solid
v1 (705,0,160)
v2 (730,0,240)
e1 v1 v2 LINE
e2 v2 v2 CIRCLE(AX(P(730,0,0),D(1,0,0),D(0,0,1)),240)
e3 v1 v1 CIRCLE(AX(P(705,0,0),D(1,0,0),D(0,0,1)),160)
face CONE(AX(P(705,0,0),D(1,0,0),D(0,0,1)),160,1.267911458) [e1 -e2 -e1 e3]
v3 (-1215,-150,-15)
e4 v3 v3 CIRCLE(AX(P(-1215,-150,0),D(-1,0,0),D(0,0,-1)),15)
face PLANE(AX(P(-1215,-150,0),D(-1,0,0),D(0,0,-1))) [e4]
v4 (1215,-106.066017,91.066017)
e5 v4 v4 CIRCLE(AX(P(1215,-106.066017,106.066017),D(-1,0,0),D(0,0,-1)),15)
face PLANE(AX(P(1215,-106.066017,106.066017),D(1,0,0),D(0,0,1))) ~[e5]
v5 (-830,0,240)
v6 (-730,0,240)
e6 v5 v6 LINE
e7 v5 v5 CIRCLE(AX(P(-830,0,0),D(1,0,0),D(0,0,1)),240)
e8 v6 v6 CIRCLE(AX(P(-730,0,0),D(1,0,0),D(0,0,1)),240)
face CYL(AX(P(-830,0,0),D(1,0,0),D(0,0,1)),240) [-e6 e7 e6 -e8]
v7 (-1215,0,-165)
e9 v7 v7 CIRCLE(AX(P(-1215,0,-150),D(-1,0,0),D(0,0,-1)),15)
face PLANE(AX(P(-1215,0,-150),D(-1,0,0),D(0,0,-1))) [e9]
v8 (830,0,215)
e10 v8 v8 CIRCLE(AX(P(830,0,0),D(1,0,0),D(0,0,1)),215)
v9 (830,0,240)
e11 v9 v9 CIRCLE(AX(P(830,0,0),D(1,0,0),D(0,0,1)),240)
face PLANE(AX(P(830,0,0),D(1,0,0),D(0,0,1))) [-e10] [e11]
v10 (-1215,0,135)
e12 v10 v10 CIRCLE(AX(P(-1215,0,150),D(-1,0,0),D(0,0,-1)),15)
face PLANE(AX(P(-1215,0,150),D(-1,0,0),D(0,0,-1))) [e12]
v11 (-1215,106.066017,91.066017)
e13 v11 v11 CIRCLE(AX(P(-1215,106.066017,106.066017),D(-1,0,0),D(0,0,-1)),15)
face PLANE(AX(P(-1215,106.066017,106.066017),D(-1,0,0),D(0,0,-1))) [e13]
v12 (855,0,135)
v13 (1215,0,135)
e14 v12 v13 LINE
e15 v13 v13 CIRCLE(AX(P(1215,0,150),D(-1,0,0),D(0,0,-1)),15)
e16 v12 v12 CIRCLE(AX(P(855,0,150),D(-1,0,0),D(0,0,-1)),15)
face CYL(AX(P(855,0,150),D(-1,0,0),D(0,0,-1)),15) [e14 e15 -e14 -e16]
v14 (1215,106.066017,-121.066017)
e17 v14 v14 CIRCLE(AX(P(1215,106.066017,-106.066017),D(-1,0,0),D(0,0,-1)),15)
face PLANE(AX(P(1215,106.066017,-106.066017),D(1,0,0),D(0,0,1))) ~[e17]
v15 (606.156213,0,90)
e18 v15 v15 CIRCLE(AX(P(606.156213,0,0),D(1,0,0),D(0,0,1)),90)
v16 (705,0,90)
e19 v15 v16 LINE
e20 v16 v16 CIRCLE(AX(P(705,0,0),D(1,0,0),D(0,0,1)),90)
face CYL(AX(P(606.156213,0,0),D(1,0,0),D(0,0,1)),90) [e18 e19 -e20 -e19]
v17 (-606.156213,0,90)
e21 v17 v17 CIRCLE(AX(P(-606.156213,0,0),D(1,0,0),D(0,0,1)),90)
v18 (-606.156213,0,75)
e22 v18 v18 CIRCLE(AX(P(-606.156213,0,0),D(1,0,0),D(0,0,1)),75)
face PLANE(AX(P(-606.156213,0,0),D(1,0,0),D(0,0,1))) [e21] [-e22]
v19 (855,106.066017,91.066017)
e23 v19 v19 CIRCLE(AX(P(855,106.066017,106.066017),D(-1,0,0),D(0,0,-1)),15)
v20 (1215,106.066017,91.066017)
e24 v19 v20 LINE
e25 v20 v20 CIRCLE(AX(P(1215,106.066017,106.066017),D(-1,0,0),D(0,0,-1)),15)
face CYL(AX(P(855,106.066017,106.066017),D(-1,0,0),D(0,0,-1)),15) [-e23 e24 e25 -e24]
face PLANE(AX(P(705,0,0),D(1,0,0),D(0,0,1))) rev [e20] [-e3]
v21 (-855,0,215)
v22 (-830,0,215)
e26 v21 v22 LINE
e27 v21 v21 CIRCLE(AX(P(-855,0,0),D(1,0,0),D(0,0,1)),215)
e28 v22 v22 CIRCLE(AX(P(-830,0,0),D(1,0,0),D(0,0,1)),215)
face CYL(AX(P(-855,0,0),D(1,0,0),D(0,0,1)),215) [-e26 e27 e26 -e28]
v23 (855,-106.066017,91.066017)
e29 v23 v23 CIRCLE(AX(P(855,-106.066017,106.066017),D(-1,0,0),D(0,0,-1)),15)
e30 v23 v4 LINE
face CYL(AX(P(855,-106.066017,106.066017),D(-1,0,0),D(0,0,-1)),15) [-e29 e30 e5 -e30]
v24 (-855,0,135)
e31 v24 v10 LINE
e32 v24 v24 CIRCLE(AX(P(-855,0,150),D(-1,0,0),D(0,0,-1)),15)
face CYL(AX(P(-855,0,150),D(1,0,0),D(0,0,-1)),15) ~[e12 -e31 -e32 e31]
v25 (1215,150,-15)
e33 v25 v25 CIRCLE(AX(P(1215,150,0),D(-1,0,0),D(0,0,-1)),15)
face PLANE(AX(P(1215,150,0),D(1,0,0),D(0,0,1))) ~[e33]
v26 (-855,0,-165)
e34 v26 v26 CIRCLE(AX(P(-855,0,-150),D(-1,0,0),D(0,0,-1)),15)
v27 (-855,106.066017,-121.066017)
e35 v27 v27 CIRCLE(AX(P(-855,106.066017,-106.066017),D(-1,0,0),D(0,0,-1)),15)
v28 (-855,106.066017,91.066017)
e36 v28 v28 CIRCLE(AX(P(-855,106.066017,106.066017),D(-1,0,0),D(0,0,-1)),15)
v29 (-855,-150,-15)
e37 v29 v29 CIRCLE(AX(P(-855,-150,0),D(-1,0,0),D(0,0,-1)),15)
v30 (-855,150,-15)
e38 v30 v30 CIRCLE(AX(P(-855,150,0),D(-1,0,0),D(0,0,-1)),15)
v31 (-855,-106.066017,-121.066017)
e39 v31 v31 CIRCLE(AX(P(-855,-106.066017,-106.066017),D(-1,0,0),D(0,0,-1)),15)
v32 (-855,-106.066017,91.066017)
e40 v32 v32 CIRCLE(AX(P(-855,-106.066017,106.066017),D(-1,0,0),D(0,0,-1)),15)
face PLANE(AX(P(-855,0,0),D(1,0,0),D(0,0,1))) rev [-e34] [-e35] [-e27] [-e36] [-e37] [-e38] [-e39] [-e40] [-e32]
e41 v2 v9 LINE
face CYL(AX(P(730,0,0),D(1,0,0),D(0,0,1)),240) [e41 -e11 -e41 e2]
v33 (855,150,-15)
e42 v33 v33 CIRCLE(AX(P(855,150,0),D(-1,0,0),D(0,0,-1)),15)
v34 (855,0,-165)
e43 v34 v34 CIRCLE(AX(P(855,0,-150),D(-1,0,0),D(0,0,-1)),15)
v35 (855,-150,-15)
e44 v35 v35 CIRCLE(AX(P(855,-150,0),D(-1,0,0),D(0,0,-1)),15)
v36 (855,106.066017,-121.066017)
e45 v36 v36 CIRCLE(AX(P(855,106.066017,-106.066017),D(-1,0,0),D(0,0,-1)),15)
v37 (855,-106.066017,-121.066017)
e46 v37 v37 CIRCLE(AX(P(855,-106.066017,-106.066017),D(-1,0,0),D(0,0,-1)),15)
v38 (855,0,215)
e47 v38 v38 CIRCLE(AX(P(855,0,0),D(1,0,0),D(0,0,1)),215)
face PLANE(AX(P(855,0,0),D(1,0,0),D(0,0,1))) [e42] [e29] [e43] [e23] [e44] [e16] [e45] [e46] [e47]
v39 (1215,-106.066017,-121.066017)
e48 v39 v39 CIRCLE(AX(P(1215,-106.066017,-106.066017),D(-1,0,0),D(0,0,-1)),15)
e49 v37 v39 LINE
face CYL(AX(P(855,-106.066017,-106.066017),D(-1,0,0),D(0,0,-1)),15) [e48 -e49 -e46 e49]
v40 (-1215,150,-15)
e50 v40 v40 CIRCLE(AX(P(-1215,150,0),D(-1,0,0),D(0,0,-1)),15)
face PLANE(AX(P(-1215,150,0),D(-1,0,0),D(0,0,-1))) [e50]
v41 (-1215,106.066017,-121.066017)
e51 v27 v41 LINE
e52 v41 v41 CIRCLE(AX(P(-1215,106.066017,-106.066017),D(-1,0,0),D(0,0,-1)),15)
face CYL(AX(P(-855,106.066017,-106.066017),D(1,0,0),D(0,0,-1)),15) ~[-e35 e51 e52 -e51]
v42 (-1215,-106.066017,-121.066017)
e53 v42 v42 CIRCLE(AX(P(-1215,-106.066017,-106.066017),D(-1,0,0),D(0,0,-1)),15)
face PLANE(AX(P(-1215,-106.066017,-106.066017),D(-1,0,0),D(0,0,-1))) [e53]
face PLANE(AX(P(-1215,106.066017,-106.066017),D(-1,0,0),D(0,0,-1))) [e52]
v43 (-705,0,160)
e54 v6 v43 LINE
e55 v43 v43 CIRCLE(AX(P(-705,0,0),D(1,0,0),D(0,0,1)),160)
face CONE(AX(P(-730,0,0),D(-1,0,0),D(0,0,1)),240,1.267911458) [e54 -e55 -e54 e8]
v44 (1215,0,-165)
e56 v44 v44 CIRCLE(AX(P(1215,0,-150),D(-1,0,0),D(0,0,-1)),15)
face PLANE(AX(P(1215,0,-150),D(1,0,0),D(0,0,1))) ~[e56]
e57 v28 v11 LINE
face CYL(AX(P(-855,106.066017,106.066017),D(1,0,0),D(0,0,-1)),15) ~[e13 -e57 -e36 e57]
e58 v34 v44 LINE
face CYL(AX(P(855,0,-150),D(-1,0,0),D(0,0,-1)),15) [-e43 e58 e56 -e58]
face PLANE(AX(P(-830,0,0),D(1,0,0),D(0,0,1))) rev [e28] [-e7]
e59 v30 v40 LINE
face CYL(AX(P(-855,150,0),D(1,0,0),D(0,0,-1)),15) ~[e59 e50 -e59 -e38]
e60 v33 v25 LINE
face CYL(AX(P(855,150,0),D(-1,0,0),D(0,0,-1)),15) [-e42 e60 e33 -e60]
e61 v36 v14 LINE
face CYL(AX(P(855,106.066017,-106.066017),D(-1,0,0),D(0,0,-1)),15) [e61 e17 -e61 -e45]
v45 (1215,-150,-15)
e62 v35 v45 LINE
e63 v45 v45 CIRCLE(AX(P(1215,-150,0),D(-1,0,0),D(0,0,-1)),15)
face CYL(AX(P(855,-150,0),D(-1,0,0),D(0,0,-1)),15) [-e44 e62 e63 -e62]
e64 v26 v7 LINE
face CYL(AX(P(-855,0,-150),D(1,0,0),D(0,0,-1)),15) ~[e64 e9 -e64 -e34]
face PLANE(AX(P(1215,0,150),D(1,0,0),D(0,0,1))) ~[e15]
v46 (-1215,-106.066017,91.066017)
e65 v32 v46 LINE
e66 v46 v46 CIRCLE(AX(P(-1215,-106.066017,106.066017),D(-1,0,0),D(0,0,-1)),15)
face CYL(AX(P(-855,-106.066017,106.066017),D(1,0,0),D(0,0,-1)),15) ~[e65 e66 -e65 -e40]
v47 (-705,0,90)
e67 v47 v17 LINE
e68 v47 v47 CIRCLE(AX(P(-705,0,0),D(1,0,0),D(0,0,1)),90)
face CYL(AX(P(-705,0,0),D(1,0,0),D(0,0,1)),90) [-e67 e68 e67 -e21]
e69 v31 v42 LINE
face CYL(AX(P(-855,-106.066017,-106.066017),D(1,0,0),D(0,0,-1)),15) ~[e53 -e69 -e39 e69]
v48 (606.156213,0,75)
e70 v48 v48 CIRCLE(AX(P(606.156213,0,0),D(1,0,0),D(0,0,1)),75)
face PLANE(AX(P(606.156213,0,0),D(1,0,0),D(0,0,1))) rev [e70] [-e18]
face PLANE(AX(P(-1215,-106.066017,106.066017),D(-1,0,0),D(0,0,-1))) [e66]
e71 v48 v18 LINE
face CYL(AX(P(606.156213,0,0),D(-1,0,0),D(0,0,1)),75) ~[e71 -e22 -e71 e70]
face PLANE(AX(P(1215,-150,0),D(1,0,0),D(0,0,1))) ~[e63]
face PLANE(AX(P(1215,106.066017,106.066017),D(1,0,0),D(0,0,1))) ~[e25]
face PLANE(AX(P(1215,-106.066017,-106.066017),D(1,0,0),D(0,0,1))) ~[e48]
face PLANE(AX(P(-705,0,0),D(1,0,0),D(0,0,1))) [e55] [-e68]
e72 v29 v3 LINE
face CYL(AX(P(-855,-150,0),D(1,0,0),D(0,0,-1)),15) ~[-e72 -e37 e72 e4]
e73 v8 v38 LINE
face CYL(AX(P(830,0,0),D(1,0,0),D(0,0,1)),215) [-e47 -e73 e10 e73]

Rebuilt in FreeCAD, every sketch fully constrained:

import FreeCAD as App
import Part
import Sketcher


def add_polygon(sketch, points):
    """Adds a closed chain of lines whose ends are joined by coincident constraints."""
    first, n = sketch.GeometryCount, len(points)
    for a, b in zip(points, points[1:] + points[:1]):
        sketch.addGeometry(Part.LineSegment(App.Vector(*a, 0), App.Vector(*b, 0)), False)
    for i in range(n):
        sketch.addConstraint(Sketcher.Constraint("Coincident", first + i, 2, first + (i + 1) % n, 1))

doc = App.newDocument("Part")
body = doc.addObject("PartDesign::Body", "Body")

# Sketch on XY plane
sketch1 = body.newObject("Sketcher::SketchObject", "Sketch")
sketch1.AttachmentSupport = (doc.getObject("XY_Plane"), [""])
sketch1.MapMode = "FlatFace"
add_polygon(sketch1, [(-855, 215), (-855, 0), (855, 0), (855, 215), (830, 215), (830, 240), (730, 240), (705, 160), (705, 90), (606, 90), (606, 75), (-606, 75), (-606, 90), (-705, 90), (-705, 160), (-730, 240), (-830, 240), (-830, 215)])  # lines 0-17
sketch1.addConstraint([
    Sketcher.Constraint("Vertical", 0),
    Sketcher.Constraint("Horizontal", 1),
    Sketcher.Constraint("Vertical", 2),
    Sketcher.Constraint("Horizontal", 3),
    Sketcher.Constraint("Vertical", 4),
    Sketcher.Constraint("Horizontal", 5),
    Sketcher.Constraint("Vertical", 7),
    Sketcher.Constraint("Horizontal", 8),
    Sketcher.Constraint("Vertical", 9),
    Sketcher.Constraint("Horizontal", 10),
    Sketcher.Constraint("Vertical", 11),
    Sketcher.Constraint("Horizontal", 12),
    Sketcher.Constraint("Vertical", 13),
    Sketcher.Constraint("Horizontal", 15),
    Sketcher.Constraint("Vertical", 16),
    Sketcher.Constraint("Horizontal", 17),
    Sketcher.Constraint("Symmetric", 0, 2, 1, 2, -1, 1),
    Sketcher.Constraint("Symmetric", 8, 2, 11, 2, -2),
    Sketcher.Constraint("Symmetric", 6, 2, 13, 2, -2),
    Sketcher.Constraint("Symmetric", 5, 2, 14, 2, -2),
    Sketcher.Constraint("Symmetric", 3, 2, 16, 2, -2),
    Sketcher.Constraint("Equal", 17, 4),
    Sketcher.Constraint("DistanceX", 1, 1, 1, 2, 1710.0),
    Sketcher.Constraint("DistanceX", 3, 2, 3, 1, 25.0),
    Sketcher.Constraint("DistanceX", 5, 2, 5, 1, 100.0),
    Sketcher.Constraint("DistanceY", 0, 2, 0, 1, 215.0),
    Sketcher.Constraint("DistanceY", 7, 2, 7, 1, 70.0),
    Sketcher.Constraint("DistanceY", 9, 2, 9, 1, 15.0),
    Sketcher.Constraint("DistanceX", -1, 1, 6, 2, 705.0),
    Sketcher.Constraint("DistanceY", -1, 1, 6, 2, 160.0),
    Sketcher.Constraint("DistanceX", 8, 2, 8, 1, 98.843787),
])
revolution = body.newObject("PartDesign::Revolution", "Revolution")
revolution.Profile = sketch1
revolution.ReferenceAxis = (sketch1, ["H_Axis"])
revolution.Angle = 360

# Sketch on YZ plane
sketch2 = body.newObject("Sketcher::SketchObject", "Sketch001")
sketch2.AttachmentSupport = (doc.getObject("YZ_Plane"), [""])
sketch2.MapMode = "FlatFace"
sketch2.AttachmentOffset = App.Placement(App.Vector(0, 0, -855), App.Rotation())
sketch2.addGeometry([
    Part.Circle(App.Vector(150, 0, 0), App.Vector(0, 0, 1), 15),  # 0
    Part.Circle(App.Vector(106, 106, 0), App.Vector(0, 0, 1), 15),  # 1
    Part.Circle(App.Vector(0, 150, 0), App.Vector(0, 0, 1), 15),  # 2
    Part.Circle(App.Vector(-106, 106, 0), App.Vector(0, 0, 1), 15),  # 3
    Part.Circle(App.Vector(-150, 0, 0), App.Vector(0, 0, 1), 15),  # 4
    Part.Circle(App.Vector(-106, -106, 0), App.Vector(0, 0, 1), 15),  # 5
    Part.Circle(App.Vector(0, -150, 0), App.Vector(0, 0, 1), 15),  # 6
    Part.Circle(App.Vector(106, -106, 0), App.Vector(0, 0, 1), 15),  # 7
], False)
sketch2.addConstraint([
    Sketcher.Constraint("Equal", 0, 1),
    Sketcher.Constraint("Equal", 1, 2),
    Sketcher.Constraint("Equal", 2, 3),
    Sketcher.Constraint("Equal", 3, 4),
    Sketcher.Constraint("Equal", 4, 5),
    Sketcher.Constraint("Equal", 5, 6),
    Sketcher.Constraint("Equal", 6, 7),
    Sketcher.Constraint("Symmetric", 0, 3, 4, 3, -1, 1),
    Sketcher.Constraint("Symmetric", 1, 3, 5, 3, -1, 1),
    Sketcher.Constraint("Symmetric", 2, 3, 6, 3, -1, 1),
    Sketcher.Constraint("Symmetric", 3, 3, 7, 3, -1, 1),
    Sketcher.Constraint("Symmetric", 1, 3, 3, 3, -2),
    Sketcher.Constraint("PointOnObject", 0, 3, -1),
    Sketcher.Constraint("PointOnObject", 2, 3, -2),
    Sketcher.Constraint("Diameter", 0, 30.0),
    Sketcher.Constraint("DistanceX", -1, 1, 0, 3, 150.0),
    Sketcher.Constraint("DistanceY", -1, 1, 2, 3, 150.0),
    Sketcher.Constraint("DistanceX", -1, 1, 1, 3, 106.066017),
    Sketcher.Constraint("DistanceY", -1, 1, 1, 3, 106.066017),
])
pad1 = body.newObject("PartDesign::Pad", "Pad")
pad1.Profile = sketch2
pad1.Length = 360
pad1.Reversed = True
doc.recompute()

mirrored = body.newObject("PartDesign::Mirrored", "Mirrored")
mirrored.Originals = [pad1]
mirrored.MirrorPlane = (doc.getObject("YZ_Plane"), [""])
body.Tip = mirrored

doc.recompute()
